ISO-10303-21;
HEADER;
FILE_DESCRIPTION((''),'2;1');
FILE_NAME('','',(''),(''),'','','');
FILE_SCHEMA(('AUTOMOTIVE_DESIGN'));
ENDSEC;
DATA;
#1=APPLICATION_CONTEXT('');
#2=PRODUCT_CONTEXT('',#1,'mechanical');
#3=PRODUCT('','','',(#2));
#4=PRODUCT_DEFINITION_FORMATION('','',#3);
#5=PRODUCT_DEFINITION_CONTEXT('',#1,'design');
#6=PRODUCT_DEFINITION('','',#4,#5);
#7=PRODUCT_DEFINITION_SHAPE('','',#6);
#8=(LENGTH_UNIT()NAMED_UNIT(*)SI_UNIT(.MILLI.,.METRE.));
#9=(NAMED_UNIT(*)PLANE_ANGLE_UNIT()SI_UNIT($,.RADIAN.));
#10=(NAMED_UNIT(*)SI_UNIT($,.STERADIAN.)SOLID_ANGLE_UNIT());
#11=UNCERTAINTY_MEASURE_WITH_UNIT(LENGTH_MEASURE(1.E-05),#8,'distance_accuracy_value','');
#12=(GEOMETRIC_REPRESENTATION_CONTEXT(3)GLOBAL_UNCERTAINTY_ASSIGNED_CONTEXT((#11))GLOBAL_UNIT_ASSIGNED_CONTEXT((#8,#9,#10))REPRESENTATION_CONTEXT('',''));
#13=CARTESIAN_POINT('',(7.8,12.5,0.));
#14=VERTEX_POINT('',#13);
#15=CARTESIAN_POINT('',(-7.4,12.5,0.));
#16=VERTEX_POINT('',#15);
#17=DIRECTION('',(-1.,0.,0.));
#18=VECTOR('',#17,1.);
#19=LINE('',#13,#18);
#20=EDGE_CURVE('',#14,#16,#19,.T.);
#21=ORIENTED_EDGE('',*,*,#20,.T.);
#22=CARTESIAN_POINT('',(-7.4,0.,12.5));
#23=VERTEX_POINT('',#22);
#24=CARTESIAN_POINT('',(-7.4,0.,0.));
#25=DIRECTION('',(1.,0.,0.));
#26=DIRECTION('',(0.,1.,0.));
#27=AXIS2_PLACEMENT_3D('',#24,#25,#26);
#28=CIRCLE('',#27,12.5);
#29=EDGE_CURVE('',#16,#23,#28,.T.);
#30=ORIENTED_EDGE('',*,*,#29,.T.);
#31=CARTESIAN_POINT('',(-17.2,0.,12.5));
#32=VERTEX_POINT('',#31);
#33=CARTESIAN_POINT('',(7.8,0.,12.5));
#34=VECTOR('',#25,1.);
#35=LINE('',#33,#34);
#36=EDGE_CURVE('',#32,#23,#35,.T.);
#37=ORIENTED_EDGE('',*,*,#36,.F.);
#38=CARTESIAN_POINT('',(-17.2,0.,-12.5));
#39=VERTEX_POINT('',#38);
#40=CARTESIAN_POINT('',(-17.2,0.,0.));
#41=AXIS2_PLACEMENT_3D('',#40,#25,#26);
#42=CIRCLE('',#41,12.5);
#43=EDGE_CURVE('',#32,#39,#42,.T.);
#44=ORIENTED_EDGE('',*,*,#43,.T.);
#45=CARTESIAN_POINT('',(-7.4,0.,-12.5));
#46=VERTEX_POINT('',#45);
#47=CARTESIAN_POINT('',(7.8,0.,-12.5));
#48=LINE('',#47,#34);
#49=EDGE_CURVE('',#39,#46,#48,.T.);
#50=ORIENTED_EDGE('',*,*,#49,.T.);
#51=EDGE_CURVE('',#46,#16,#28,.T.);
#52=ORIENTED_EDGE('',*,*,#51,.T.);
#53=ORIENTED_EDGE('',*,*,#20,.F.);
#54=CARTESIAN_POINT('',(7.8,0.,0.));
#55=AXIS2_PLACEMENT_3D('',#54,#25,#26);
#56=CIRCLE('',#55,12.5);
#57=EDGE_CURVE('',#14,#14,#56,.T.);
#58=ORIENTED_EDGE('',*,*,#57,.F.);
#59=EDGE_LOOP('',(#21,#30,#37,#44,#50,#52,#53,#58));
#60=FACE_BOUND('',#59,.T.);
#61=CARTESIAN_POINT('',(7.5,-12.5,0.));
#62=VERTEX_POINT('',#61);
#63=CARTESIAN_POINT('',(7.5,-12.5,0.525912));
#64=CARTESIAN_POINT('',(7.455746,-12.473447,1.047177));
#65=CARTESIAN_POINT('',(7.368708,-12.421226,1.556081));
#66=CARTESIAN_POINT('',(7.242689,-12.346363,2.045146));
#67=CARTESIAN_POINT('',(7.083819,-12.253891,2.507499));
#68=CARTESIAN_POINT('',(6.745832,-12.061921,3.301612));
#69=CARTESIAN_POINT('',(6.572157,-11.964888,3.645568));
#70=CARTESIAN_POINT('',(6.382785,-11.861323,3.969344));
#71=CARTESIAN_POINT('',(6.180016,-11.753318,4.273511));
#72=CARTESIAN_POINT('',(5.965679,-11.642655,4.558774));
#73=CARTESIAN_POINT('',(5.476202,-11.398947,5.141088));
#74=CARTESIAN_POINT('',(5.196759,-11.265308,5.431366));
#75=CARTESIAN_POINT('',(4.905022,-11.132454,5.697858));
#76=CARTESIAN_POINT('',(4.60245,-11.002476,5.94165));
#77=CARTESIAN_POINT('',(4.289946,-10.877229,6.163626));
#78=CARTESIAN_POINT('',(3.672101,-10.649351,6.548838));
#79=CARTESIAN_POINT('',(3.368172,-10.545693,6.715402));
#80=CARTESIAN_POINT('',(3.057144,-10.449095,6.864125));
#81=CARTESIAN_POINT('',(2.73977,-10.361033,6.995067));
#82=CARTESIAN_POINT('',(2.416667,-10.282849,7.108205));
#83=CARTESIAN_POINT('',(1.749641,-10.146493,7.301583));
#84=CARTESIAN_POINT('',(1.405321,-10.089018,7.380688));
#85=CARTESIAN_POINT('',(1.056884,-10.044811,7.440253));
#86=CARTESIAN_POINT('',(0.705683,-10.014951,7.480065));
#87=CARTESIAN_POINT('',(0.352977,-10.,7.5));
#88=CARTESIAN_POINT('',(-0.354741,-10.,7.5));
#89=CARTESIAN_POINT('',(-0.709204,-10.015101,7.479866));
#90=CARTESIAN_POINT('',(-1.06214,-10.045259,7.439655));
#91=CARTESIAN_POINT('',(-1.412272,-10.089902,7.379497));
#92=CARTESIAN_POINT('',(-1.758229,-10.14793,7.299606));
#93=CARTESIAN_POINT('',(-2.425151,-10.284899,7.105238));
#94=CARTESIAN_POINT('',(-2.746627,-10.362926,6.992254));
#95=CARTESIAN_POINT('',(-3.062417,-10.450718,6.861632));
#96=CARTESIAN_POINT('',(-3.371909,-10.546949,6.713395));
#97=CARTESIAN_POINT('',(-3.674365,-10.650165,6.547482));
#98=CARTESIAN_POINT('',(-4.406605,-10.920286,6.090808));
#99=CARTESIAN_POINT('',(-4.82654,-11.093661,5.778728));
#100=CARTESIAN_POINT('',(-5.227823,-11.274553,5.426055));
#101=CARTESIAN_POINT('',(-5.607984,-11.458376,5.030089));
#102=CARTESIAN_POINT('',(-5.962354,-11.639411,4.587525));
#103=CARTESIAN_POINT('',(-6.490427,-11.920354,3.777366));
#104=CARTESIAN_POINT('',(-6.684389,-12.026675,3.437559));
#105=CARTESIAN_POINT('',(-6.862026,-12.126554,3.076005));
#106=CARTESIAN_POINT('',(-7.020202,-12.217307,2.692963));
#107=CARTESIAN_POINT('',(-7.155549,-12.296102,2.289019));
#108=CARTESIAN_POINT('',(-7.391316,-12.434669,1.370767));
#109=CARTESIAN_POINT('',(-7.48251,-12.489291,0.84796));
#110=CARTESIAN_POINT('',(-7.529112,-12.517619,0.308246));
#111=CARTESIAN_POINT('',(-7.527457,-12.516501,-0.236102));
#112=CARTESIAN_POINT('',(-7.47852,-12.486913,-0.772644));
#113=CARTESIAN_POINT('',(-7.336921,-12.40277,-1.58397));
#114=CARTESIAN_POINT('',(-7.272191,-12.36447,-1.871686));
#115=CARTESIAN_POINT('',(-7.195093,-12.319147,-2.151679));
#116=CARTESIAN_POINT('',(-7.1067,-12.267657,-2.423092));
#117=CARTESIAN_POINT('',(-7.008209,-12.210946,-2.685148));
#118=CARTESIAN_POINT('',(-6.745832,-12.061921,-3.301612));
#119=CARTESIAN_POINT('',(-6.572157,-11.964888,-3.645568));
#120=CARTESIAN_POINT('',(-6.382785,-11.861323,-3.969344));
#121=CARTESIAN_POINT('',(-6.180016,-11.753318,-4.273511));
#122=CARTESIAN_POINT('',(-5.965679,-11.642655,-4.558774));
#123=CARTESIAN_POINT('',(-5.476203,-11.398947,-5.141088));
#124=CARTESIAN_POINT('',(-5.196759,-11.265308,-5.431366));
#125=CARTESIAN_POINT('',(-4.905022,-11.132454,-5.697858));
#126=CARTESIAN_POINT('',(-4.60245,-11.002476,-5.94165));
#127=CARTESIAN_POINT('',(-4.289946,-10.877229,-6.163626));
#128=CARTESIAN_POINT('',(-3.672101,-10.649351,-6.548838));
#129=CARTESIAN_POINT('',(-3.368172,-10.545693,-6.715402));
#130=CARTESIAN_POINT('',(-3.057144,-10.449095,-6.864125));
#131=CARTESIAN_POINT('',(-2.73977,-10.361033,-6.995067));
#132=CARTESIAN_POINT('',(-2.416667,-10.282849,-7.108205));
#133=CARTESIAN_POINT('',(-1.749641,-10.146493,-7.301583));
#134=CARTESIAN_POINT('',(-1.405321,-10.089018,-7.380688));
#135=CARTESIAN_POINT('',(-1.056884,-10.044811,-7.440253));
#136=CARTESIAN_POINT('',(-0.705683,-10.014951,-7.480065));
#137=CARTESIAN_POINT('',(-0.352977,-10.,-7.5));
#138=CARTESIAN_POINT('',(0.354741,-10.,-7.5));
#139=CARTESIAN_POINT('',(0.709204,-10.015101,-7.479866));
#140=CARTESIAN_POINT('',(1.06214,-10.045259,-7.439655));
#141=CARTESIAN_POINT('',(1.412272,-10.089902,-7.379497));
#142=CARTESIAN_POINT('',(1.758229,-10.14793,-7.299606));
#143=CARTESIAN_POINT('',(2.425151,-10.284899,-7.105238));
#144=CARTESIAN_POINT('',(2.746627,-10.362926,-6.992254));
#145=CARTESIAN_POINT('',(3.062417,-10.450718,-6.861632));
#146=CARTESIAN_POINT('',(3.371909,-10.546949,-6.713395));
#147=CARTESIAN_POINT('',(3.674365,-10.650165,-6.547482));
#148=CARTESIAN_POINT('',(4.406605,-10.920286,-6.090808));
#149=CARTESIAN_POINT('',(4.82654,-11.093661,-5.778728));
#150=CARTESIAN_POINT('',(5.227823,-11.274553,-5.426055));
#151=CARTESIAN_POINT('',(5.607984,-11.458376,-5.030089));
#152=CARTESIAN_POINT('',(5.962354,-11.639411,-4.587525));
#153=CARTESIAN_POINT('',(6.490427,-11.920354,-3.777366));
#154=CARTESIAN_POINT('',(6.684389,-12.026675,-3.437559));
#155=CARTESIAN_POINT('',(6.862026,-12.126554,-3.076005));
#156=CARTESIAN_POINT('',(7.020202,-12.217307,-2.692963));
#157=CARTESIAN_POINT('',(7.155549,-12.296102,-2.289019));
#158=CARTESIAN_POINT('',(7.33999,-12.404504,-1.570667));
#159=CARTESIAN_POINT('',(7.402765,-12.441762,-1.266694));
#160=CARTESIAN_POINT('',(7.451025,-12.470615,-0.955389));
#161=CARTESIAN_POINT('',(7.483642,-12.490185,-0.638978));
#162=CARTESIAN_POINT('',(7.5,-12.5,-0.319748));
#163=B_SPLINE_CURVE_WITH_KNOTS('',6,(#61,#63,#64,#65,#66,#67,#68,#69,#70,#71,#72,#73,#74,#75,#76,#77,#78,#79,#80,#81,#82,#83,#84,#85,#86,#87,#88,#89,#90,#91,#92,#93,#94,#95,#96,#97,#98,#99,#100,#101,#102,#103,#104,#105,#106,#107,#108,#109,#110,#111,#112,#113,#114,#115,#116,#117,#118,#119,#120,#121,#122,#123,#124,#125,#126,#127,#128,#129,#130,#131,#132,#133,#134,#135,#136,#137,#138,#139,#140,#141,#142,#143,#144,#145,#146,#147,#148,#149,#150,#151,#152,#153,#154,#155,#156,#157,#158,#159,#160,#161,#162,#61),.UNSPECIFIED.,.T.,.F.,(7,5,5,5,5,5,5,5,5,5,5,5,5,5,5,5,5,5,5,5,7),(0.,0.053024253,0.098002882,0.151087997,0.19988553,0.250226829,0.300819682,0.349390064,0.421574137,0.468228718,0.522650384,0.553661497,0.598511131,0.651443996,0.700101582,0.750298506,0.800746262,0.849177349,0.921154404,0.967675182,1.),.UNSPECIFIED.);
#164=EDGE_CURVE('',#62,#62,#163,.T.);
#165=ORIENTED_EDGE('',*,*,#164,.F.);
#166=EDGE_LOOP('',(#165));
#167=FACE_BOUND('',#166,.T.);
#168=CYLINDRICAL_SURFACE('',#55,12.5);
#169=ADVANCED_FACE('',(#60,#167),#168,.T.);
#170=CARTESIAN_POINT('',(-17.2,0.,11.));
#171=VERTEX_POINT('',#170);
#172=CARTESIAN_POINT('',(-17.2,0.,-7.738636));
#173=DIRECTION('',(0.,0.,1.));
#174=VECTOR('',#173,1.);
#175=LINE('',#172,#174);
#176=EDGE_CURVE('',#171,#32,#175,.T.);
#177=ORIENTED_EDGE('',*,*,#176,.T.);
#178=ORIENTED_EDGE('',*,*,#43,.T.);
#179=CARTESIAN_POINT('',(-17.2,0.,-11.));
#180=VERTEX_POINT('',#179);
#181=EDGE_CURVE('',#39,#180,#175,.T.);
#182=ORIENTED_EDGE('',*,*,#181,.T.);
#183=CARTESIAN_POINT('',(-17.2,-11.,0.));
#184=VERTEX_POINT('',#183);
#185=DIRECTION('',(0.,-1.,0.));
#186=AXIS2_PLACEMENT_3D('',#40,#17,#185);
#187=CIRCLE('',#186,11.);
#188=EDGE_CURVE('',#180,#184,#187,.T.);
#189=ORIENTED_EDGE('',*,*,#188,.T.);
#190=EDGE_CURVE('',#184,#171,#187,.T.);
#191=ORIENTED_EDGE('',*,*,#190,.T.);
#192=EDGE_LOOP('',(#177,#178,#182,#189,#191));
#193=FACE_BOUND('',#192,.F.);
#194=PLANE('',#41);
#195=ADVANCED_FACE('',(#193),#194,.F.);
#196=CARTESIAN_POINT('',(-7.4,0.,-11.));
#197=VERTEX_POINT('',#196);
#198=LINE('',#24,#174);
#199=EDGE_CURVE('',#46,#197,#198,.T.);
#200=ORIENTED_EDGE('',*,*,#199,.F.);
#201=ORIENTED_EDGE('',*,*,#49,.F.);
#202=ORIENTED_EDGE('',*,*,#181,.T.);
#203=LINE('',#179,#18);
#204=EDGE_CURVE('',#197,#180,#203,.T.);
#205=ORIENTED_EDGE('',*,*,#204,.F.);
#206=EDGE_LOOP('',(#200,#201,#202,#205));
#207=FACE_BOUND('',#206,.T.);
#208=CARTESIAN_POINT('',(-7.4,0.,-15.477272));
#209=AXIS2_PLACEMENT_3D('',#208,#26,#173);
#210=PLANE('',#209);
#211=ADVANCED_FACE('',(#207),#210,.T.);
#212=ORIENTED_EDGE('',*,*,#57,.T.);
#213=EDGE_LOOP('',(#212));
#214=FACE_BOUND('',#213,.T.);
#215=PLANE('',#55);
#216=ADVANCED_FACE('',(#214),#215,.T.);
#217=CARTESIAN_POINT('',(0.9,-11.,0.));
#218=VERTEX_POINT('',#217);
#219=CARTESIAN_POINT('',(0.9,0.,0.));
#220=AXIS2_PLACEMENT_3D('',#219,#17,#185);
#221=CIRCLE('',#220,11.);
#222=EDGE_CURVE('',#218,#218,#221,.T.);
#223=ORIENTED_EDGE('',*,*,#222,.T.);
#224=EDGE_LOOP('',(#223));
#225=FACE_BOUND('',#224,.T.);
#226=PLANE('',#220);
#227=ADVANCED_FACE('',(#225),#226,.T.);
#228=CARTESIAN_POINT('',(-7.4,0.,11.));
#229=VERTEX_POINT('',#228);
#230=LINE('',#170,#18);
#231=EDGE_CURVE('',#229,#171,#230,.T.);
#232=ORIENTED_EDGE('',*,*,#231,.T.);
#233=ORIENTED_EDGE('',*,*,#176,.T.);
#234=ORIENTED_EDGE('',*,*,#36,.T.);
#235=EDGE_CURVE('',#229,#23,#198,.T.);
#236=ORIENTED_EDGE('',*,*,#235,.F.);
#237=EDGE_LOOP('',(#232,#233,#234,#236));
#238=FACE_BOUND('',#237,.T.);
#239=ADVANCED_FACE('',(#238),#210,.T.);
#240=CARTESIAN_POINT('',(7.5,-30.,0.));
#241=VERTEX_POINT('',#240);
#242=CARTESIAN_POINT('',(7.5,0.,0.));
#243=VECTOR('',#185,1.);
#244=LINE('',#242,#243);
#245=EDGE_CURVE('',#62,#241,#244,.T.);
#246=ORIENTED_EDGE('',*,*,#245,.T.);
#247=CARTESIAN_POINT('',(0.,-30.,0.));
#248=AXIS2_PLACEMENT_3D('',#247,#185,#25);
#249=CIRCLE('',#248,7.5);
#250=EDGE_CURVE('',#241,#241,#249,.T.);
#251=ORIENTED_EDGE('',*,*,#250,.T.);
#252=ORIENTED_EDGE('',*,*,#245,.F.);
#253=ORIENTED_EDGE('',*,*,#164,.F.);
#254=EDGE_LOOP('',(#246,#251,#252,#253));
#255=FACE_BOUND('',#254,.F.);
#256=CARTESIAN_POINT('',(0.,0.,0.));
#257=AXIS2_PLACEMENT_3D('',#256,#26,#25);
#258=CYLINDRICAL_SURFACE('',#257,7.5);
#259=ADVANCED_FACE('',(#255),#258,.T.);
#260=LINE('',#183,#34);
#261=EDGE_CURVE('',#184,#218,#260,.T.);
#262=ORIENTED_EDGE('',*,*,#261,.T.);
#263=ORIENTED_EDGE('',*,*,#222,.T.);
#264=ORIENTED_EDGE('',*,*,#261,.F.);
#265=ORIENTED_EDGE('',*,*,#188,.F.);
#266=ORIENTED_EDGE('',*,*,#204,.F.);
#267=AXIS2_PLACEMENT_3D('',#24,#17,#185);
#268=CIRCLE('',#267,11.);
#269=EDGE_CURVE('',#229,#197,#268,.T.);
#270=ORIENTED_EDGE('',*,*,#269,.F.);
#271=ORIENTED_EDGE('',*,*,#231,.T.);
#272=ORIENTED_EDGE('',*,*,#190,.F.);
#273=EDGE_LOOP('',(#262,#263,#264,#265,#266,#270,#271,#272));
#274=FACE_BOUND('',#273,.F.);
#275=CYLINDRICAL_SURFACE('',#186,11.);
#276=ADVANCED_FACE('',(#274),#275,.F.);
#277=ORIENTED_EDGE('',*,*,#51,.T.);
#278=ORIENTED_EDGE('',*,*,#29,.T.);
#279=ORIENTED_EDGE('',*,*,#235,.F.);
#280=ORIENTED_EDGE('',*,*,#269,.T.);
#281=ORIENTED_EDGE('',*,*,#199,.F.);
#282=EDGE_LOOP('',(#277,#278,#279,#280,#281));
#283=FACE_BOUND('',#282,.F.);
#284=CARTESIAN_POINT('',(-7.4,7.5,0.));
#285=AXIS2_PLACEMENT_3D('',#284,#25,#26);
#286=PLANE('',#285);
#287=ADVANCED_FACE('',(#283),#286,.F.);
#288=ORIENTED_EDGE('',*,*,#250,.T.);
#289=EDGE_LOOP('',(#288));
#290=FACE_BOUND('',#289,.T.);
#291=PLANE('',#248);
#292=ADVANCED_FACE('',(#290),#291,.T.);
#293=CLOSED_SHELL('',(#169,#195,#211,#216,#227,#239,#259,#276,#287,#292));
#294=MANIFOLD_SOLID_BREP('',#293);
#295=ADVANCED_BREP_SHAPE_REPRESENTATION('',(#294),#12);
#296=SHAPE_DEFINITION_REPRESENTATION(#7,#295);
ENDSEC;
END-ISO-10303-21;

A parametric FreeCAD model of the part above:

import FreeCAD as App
import Part
import Sketcher

V = App.Vector
Q = App.Units.Quantity


def add_polygon(sketch, points):
    """Adds a closed chain of lines whose ends are joined by coincident constraints."""
    first, n = sketch.GeometryCount, len(points)
    for a, b in zip(points, points[1:] + points[:1]):
        sketch.addGeometry(Part.LineSegment(App.Vector(*a, 0), App.Vector(*b, 0)), False)
    for i in range(n):
        sketch.addConstraint(Sketcher.Constraint("Coincident", first + i, 2, first + (i + 1) % n, 1))

doc = App.newDocument("Part")
params = doc.addObject("Spreadsheet::Sheet", "Params")
for row, (alias, value) in enumerate([
    ("sketch1_diameter", "15 mm"),
    ("pad1_length", "30 mm"),
    ("sketch2_diameter", "25 mm"),
    ("pad2_length", "25 mm"),
    ("sketch3_diameter", "22 mm"),
    ("pocket1_length", "18.1 mm"),
    ("sketch4_width", "15 mm"),
    ("pocket2_length", "25 mm"),
], start=1):
    params.set(f"A{row}", alias)
    params.set(f"B{row}", "=" + value)
    params.setAlias(f"B{row}", alias)

body = doc.addObject("PartDesign::Body", "Body")

# Sketch on XZ plane
sketch1 = body.newObject("Sketcher::SketchObject", "Sketch")
sketch1.AttachmentSupport = (doc.getObject("XZ_Plane"), [""])
sketch1.MapMode = "FlatFace"
sketch1.addGeometry(Part.Circle(V(0, 0, 0), V(0, 0, 1), 8), False)
sketch1.addConstraint([
    Sketcher.Constraint("Coincident", 0, 3, -1, 1),
    Sketcher.Constraint("Diameter", 0, Q("15 mm")),
])
sketch1.setExpression("Constraints[1]", "Params.sketch1_diameter")
pad1 = body.newObject("PartDesign::Pad", "Pad")
pad1.Profile = sketch1
pad1.setExpression("Length", "Params.pad1_length")

# Sketch on YZ plane
sketch2 = body.newObject("Sketcher::SketchObject", "Sketch001")
sketch2.AttachmentSupport = (doc.getObject("YZ_Plane"), [""])
sketch2.MapMode = "FlatFace"
sketch2.AttachmentOffset = App.Placement(V(0, 0, 7.8), App.Rotation())
sketch2.addGeometry(Part.Circle(V(0, 0, 0), V(0, 0, 1), 12), False)
sketch2.addConstraint([
    Sketcher.Constraint("Coincident", 0, 3, -1, 1),
    Sketcher.Constraint("Diameter", 0, Q("25 mm")),
])
sketch2.setExpression("Constraints[1]", "Params.sketch2_diameter")
pad2 = body.newObject("PartDesign::Pad", "Pad001")
pad2.Profile = sketch2
pad2.setExpression("Length", "Params.pad2_length")
pad2.Reversed = True

# Sketch on YZ plane
sketch3 = body.newObject("Sketcher::SketchObject", "Sketch002")
sketch3.AttachmentSupport = (doc.getObject("YZ_Plane"), [""])
sketch3.MapMode = "FlatFace"
sketch3.AttachmentOffset = App.Placement(V(0, 0, -17.2), App.Rotation())
sketch3.addGeometry(Part.Circle(V(0, 0, 0), V(0, 0, 1), 11), False)
sketch3.addConstraint([
    Sketcher.Constraint("Coincident", 0, 3, -1, 1),
    Sketcher.Constraint("Diameter", 0, Q("22 mm")),
])
sketch3.setExpression("Constraints[1]", "Params.sketch3_diameter")
pocket1 = body.newObject("PartDesign::Pocket", "Pocket")
pocket1.Profile = sketch3
pocket1.setExpression("Length", "Params.pocket1_length")
pocket1.Reversed = True

# Sketch on YZ plane
sketch4 = body.newObject("Sketcher::SketchObject", "Sketch003")
sketch4.AttachmentSupport = (doc.getObject("YZ_Plane"), [""])
sketch4.MapMode = "FlatFace"
sketch4.AttachmentOffset = App.Placement(V(0, 0, -7.4), App.Rotation())
add_polygon(sketch4, [(0, 15), (0, -15), (15, -15), (15, 15)])  # lines 0-3
sketch4.addConstraint([
    Sketcher.Constraint("Vertical", 0),
    Sketcher.Constraint("Horizontal", 1),
    Sketcher.Constraint("Vertical", 2),
    Sketcher.Constraint("Horizontal", 3),
    Sketcher.Constraint("Symmetric", 0, 2, 3, 2, -1, 1),
    Sketcher.Constraint("DistanceX", 1, 1, 1, 2, Q("15 mm")),
    Sketcher.Constraint("DistanceY", 0, 2, 0, 1, Q("30.954544 mm")),
])
sketch4.setExpression("Constraints[9]", "Params.sketch4_width")
pocket2 = body.newObject("PartDesign::Pocket", "Pocket001")
pocket2.Profile = sketch4
pocket2.setExpression("Length", "Params.pocket2_length")

doc.recompute()
